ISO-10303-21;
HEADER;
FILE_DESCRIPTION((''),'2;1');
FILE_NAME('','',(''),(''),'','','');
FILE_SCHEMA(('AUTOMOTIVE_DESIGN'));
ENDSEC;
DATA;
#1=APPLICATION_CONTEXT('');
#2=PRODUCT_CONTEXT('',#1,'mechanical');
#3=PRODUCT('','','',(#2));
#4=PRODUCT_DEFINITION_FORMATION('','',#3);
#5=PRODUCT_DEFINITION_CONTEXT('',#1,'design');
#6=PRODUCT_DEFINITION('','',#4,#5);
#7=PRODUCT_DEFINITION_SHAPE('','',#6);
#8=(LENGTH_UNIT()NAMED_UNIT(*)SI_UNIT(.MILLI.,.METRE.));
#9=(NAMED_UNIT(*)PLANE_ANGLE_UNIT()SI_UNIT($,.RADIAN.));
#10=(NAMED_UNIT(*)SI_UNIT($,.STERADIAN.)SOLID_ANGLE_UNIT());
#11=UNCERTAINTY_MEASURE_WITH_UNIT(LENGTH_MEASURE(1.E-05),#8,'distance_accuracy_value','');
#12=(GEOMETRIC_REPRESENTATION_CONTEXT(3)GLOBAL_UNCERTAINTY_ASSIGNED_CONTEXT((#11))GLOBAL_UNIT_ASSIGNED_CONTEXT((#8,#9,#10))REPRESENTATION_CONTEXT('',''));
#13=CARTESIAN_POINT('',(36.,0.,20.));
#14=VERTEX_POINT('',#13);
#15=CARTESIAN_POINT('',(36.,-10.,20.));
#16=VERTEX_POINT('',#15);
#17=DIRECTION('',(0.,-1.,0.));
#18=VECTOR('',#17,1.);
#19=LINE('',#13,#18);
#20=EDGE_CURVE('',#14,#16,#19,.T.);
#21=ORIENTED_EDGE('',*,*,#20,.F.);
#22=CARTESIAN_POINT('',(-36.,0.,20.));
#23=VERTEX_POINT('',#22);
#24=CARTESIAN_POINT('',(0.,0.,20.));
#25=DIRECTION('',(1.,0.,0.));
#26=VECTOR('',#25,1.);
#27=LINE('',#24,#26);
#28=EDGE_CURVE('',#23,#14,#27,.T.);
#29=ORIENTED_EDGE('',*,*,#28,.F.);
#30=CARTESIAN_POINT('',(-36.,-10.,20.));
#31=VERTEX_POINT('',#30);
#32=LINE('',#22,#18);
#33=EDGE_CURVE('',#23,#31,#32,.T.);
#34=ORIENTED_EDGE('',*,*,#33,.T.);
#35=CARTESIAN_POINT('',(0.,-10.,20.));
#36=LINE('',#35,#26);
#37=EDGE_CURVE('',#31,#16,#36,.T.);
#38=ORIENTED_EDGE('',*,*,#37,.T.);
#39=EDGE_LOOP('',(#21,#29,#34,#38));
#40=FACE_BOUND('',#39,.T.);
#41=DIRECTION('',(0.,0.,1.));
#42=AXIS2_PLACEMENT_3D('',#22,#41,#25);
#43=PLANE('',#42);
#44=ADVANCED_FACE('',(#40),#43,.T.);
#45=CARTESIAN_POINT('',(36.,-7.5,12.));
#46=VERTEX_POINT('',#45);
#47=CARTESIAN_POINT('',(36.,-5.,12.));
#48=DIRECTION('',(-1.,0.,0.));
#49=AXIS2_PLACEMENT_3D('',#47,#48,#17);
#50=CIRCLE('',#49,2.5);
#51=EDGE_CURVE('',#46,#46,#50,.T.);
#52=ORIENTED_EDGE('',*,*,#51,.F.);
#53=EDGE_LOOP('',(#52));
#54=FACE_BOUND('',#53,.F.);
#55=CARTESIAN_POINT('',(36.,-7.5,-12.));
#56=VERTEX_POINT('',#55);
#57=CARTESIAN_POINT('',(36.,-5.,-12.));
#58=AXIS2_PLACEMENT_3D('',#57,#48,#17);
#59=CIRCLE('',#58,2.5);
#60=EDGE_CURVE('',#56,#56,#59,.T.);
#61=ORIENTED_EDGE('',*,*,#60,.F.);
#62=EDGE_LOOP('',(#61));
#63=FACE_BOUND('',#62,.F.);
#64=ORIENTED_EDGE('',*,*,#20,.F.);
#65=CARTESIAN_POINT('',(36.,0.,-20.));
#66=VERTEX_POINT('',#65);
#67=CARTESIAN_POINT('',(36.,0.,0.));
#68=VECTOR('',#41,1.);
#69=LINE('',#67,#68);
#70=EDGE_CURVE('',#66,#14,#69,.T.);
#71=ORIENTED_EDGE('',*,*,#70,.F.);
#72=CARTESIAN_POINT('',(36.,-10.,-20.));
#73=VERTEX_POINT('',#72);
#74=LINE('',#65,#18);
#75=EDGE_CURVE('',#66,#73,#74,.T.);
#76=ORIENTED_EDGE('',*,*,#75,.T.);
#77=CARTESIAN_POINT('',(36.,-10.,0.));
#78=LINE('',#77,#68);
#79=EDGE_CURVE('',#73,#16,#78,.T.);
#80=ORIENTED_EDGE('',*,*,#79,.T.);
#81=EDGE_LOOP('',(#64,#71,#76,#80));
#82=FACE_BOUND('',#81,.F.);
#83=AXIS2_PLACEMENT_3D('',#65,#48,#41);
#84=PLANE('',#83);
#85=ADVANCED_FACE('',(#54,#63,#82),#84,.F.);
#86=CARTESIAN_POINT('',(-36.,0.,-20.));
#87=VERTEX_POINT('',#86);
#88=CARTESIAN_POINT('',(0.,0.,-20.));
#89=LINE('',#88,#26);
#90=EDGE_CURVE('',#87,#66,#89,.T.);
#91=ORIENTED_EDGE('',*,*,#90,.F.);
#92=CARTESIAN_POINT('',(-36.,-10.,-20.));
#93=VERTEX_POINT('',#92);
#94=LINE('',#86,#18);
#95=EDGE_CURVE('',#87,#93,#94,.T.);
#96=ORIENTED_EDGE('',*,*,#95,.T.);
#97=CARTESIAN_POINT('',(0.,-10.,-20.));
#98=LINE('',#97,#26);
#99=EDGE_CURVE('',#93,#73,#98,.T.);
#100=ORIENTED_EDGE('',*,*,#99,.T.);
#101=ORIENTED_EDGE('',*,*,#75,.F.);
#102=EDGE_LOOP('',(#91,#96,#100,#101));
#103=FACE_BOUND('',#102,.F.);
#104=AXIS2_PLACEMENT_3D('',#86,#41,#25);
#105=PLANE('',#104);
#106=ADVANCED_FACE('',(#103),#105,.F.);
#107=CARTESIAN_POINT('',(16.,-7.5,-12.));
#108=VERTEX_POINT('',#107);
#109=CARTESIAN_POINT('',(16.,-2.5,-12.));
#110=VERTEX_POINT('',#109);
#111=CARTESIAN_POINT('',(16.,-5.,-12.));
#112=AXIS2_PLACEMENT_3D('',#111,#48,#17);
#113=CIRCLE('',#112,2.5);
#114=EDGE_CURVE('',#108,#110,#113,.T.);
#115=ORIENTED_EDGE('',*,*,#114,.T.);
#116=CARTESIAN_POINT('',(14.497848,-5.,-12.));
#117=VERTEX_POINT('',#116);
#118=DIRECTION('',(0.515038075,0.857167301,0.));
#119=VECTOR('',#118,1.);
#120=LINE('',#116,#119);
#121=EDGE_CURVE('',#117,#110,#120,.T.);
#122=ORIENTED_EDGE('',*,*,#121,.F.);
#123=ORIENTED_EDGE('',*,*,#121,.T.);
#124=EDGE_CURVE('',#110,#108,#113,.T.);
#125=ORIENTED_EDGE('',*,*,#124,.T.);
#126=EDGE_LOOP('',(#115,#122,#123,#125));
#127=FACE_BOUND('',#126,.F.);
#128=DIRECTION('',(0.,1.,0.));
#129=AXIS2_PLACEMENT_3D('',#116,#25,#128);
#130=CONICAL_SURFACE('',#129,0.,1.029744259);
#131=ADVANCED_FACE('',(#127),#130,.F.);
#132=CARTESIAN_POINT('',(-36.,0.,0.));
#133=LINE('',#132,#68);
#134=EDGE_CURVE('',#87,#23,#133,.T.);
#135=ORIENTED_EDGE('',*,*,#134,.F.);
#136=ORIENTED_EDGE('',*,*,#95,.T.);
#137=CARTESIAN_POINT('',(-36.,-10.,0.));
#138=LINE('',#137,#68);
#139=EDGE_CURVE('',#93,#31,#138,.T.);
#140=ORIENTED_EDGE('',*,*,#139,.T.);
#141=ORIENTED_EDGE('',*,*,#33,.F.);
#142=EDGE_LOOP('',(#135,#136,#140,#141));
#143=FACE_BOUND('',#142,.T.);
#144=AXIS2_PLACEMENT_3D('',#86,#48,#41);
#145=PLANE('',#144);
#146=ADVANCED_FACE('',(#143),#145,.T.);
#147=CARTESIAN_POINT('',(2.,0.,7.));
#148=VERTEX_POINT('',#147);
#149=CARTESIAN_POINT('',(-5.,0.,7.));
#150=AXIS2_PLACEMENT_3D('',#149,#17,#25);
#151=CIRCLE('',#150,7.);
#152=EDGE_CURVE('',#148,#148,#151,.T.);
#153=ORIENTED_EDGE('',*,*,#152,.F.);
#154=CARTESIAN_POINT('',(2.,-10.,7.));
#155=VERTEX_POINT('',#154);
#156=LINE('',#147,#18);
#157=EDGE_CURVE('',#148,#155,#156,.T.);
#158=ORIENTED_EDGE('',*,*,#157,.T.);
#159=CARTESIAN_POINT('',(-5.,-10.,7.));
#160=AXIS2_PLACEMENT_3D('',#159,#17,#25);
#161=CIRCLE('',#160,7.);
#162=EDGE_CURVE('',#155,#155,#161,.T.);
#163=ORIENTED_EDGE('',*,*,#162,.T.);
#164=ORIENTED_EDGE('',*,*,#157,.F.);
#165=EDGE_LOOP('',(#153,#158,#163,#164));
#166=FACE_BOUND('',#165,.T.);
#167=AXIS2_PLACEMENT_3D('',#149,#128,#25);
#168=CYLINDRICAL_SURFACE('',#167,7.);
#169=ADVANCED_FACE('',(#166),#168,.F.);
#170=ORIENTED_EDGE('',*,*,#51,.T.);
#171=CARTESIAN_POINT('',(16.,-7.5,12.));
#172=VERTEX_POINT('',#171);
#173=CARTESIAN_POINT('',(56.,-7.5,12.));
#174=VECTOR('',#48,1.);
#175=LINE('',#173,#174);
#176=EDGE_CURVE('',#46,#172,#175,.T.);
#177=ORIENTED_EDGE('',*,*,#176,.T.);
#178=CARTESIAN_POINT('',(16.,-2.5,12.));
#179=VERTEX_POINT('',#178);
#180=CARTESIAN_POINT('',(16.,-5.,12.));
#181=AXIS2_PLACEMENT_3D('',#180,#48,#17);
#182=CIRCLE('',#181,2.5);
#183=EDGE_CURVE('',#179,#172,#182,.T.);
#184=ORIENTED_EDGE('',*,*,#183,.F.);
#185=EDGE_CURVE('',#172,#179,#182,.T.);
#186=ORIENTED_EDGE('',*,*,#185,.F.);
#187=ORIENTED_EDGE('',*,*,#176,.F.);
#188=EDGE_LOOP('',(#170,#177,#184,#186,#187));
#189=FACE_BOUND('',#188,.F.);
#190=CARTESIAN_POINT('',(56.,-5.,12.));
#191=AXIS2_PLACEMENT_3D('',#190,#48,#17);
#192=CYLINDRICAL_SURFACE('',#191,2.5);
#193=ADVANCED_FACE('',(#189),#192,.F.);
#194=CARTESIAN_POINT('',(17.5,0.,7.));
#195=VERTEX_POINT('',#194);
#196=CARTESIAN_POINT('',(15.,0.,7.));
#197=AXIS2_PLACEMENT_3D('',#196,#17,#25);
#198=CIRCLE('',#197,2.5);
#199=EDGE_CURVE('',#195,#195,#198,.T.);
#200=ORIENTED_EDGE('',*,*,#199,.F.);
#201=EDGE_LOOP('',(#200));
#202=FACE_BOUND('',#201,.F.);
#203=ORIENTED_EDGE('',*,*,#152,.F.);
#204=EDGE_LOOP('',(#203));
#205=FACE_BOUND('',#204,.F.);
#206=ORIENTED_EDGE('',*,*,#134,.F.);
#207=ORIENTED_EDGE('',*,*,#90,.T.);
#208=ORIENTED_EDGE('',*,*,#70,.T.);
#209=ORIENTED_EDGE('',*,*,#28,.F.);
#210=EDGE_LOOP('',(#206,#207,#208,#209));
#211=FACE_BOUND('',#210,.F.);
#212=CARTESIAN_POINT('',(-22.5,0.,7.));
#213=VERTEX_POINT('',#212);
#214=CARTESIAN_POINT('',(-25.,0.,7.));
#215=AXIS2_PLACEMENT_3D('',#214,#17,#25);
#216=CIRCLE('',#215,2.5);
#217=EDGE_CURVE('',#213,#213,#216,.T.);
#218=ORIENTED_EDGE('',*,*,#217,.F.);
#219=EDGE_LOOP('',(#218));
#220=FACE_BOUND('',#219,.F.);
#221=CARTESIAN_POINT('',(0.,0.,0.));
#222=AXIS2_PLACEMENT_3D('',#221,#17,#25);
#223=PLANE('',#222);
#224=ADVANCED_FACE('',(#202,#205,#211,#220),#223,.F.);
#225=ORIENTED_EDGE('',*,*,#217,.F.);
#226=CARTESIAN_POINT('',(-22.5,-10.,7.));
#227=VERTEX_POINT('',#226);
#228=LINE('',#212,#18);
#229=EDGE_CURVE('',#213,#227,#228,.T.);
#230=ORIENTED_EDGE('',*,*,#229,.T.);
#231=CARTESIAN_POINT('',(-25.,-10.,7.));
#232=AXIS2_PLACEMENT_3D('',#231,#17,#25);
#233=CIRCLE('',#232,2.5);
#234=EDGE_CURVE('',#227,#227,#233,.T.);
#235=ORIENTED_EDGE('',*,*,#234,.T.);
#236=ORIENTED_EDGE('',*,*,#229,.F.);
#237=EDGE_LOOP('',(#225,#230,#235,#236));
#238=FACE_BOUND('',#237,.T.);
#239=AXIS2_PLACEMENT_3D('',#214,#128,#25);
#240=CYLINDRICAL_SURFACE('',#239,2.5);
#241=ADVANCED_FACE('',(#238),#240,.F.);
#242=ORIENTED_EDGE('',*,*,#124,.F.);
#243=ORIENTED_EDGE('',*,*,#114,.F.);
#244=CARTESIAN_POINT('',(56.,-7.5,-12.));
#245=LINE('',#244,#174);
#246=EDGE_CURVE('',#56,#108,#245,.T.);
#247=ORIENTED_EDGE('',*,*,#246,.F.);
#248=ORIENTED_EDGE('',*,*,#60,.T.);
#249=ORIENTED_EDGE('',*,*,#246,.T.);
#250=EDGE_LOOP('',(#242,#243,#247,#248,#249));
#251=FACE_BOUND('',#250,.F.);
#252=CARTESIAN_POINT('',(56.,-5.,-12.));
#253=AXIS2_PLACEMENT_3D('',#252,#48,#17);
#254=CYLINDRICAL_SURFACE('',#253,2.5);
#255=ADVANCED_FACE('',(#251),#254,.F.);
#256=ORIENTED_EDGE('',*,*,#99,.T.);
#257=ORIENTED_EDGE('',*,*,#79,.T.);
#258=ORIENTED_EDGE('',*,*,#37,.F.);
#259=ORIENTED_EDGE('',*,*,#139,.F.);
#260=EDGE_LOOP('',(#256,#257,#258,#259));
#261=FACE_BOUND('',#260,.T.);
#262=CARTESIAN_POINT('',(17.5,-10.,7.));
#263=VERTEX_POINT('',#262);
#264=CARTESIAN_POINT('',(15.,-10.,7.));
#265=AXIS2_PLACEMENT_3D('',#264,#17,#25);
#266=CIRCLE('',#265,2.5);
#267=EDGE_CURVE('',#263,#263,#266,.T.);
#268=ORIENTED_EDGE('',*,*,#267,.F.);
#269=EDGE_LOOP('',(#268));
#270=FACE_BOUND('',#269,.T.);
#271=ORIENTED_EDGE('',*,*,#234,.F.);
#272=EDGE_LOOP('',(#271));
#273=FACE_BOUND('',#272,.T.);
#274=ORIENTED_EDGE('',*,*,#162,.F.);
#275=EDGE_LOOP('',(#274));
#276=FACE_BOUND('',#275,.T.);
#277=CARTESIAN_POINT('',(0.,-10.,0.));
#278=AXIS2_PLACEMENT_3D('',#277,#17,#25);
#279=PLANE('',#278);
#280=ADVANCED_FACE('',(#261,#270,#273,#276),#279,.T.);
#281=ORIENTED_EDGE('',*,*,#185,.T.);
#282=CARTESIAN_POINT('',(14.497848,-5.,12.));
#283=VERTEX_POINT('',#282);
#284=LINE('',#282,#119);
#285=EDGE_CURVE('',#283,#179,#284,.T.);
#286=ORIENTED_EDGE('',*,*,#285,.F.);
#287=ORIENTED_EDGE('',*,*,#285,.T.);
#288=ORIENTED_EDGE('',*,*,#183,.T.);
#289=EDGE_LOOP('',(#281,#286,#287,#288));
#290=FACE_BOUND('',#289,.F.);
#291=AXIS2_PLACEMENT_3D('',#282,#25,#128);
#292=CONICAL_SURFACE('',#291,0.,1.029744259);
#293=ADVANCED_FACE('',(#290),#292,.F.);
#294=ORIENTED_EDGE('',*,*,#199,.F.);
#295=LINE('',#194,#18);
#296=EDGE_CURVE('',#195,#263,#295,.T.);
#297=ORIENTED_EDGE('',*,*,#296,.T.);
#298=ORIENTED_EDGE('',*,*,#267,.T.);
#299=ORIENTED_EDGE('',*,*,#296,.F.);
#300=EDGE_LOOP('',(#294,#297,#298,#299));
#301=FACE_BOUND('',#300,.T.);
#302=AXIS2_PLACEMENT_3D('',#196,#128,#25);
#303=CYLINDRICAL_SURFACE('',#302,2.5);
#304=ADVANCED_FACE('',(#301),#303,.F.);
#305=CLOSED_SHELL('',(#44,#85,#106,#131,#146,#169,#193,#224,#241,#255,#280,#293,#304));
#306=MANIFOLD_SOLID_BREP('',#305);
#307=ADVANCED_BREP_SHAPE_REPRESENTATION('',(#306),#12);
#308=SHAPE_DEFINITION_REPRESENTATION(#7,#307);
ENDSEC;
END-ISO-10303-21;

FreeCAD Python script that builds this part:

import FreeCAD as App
import Part
import Sketcher
from FreeCAD import Vector
Q = App.Units.Quantity

doc = App.newDocument("Part")
params = doc.addObject("Spreadsheet::Sheet", "Params")
for row, (alias, value) in enumerate([
    ("sketch1_diameter", "5 mm"),
    ("sketch1_diameter2", "14 mm"),
    ("sketch1_width", "72 mm"),
    ("sketch1_height", "40 mm"),
    ("pad1_length", "10 mm"),
    ("sketch2_diameter", "5 mm"),
    ("hole_diameter", "5 mm"),
    ("hole_depth", "20 mm"),
], start=1):
    params.set(f"A{row}", alias)
    params.set(f"B{row}", "=" + value)
    params.setAlias(f"B{row}", alias)

body = doc.addObject("PartDesign::Body", "Body")

sketch1 = body.newObject("Sketcher::SketchObject", "Sketch")
sketch1.AttachmentSupport = (doc.getObject("XZ_Plane"), [""])
sketch1.MapMode = "FlatFace"
sketch1.addGeometry(Part.LineSegment(Vector(-36, 20, 0), Vector(-36, -20, 0)), False)
sketch1.addGeometry(Part.LineSegment(Vector(-36, -20, 0), Vector(36, -20, 0)), False)
sketch1.addGeometry(Part.LineSegment(Vector(36, -20, 0), Vector(36, 20, 0)), False)
sketch1.addGeometry(Part.LineSegment(Vector(36, 20, 0), Vector(-36, 20, 0)), False)
sketch1.addGeometry(Part.Circle(Vector(-25, 7, 0), Vector(0, 0, 1), 2.5), False)
sketch1.addGeometry(Part.Circle(Vector(-5, 7, 0), Vector(0, 0, 1), 7), False)
sketch1.addGeometry(Part.Circle(Vector(15, 7, 0), Vector(0, 0, 1), 2.5), False)
sketch1.addConstraint(Sketcher.Constraint("Coincident", 0, 2, 1, 1))
sketch1.addConstraint(Sketcher.Constraint("Coincident", 1, 2, 2, 1))
sketch1.addConstraint(Sketcher.Constraint("Coincident", 2, 2, 3, 1))
sketch1.addConstraint(Sketcher.Constraint("Coincident", 3, 2, 0, 1))
sketch1.addConstraint(Sketcher.Constraint("Vertical", 0))
sketch1.addConstraint(Sketcher.Constraint("Horizontal", 1))
sketch1.addConstraint(Sketcher.Constraint("Vertical", 2))
sketch1.addConstraint(Sketcher.Constraint("Horizontal", 3))
sketch1.addConstraint(Sketcher.Constraint("Equal", 4, 6))
sketch1.addConstraint(Sketcher.Constraint("Symmetric", 0, 2, 2, 2, -1, 1))
sketch1.addConstraint(Sketcher.Constraint("Horizontal", 4, 3, 5, 3))
sketch1.addConstraint(Sketcher.Constraint("Horizontal", 5, 3, 6, 3))
sketch1.addConstraint(Sketcher.Constraint("Diameter", 4, Q("5 mm")))
sketch1.addConstraint(Sketcher.Constraint("Diameter", 5, Q("14 mm")))
sketch1.addConstraint(Sketcher.Constraint("DistanceX", 1, 1, 1, 2, Q("72 mm")))
sketch1.addConstraint(Sketcher.Constraint("DistanceY", 0, 2, 0, 1, Q("40 mm")))
sketch1.addConstraint(Sketcher.Constraint("DistanceX", 4, 3, -1, 1, Q("25 mm")))
sketch1.addConstraint(Sketcher.Constraint("DistanceY", -1, 1, 4, 3, Q("7 mm")))
sketch1.addConstraint(Sketcher.Constraint("DistanceX", 5, 3, -1, 1, Q("5 mm")))
sketch1.addConstraint(Sketcher.Constraint("DistanceX", -1, 1, 6, 3, Q("15 mm")))
sketch1.setExpression("Constraints[12]", "Params.sketch1_diameter")
sketch1.setExpression("Constraints[13]", "Params.sketch1_diameter2")
sketch1.setExpression("Constraints[14]", "Params.sketch1_width")
sketch1.setExpression("Constraints[15]", "Params.sketch1_height")
pad1 = body.newObject("PartDesign::Pad", "Pad")
pad1.Profile = sketch1
pad1.setExpression("Length", "Params.pad1_length")

sketch2 = body.newObject("Sketcher::SketchObject", "Sketch001")
sketch2.AttachmentSupport = (doc.getObject("YZ_Plane"), [""])
sketch2.MapMode = "FlatFace"
sketch2.AttachmentOffset = App.Placement(Vector(0, 0, 36), App.Rotation())
sketch2.addGeometry(Part.Circle(Vector(-5, 12, 0), Vector(0, 0, 1), 2.5), False)
sketch2.addGeometry(Part.Circle(Vector(-5, -12, 0), Vector(0, 0, 1), 2.5), False)
sketch2.addConstraint(Sketcher.Constraint("Equal", 0, 1))
sketch2.addConstraint(Sketcher.Constraint("Symmetric", 0, 3, 1, 3, -1))
sketch2.addConstraint(Sketcher.Constraint("Diameter", 0, Q("5 mm")))
sketch2.addConstraint(Sketcher.Constraint("DistanceX", 0, 3, -1, 1, Q("5 mm")))
sketch2.addConstraint(Sketcher.Constraint("DistanceY", -1, 1, 0, 3, Q("12 mm")))
sketch2.setExpression("Constraints[2]", "Params.sketch2_diameter")
doc.recompute()
hole = body.newObject("PartDesign::Hole", "Hole")
hole.Profile = sketch2
hole.ThreadType = "None"
hole.setExpression("Diameter", "Params.hole_diameter")
hole.DepthType = "Dimension"
hole.setExpression("Depth", "Params.hole_depth")
hole.DrillPoint = "Angled"
hole.DrillPointAngle = 118

doc.recompute()
